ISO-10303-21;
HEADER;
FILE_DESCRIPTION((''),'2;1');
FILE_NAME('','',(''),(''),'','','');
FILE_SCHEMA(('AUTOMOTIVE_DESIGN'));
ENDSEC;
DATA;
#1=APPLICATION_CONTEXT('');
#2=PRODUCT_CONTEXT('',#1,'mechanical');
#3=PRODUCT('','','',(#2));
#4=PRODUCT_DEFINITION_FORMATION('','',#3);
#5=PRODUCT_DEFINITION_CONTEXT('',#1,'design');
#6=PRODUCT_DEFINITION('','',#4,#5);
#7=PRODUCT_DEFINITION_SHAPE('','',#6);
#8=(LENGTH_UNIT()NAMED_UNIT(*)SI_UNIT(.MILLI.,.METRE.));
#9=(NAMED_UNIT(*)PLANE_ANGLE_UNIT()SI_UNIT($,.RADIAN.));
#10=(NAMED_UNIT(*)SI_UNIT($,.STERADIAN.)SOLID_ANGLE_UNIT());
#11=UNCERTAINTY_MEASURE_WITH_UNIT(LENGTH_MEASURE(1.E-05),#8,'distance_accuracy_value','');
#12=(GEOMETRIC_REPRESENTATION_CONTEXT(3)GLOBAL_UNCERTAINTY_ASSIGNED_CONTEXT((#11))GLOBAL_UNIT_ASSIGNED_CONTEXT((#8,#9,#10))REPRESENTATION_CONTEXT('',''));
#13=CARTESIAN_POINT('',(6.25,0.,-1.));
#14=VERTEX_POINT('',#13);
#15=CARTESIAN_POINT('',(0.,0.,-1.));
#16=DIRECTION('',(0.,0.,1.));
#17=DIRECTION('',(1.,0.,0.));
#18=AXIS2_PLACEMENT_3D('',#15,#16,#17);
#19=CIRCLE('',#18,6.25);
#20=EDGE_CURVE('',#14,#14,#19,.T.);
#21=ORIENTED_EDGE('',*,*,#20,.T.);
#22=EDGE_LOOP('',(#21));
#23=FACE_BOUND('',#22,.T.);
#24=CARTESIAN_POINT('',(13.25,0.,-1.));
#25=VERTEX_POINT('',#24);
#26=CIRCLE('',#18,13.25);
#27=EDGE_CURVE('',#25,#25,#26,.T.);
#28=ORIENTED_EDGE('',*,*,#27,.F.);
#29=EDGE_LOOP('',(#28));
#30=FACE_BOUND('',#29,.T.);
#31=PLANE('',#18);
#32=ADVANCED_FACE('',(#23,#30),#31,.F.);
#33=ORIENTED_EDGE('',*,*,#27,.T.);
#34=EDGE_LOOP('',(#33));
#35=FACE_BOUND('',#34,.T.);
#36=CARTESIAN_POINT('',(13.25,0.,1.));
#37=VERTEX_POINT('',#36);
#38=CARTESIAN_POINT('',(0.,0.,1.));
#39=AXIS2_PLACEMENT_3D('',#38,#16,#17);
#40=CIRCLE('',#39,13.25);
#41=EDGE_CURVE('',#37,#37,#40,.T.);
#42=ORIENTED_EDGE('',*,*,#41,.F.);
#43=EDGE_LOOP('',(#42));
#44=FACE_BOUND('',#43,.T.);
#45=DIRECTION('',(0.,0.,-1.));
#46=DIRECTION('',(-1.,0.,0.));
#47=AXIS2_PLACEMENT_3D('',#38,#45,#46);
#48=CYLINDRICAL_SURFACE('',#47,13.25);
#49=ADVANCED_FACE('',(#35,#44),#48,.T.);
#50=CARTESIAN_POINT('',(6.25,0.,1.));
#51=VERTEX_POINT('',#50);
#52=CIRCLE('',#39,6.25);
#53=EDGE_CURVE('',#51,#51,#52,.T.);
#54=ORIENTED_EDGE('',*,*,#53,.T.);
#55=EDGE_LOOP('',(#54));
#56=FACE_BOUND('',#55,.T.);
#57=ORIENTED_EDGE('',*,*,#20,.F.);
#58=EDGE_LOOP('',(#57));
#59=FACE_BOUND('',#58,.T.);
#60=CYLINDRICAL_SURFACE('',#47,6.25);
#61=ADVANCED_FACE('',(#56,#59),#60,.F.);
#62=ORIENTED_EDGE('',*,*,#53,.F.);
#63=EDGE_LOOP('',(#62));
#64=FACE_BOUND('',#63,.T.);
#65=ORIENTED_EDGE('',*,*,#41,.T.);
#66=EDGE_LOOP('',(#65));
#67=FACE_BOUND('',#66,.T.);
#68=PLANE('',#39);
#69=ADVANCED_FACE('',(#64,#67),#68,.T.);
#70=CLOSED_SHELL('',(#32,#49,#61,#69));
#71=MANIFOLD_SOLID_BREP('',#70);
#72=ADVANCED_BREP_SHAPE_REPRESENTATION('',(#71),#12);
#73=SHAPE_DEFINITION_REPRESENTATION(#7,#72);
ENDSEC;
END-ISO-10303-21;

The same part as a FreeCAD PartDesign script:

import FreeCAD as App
import Part
import Sketcher
from FreeCAD import Vector
Q = App.Units.Quantity

doc = App.newDocument("Part")
body = doc.addObject("PartDesign::Body", "Body")

# Sketch on XY plane
sketch1 = body.newObject("Sketcher::SketchObject", "Sketch")
sketch1.AttachmentSupport = (doc.getObject("XY_Plane"), [""])
sketch1.MapMode = "FlatFace"
sketch1.addGeometry(Part.Circle(Vector(0, 0, 0), Vector(0, 0, 1), 13.25), False)
sketch1.addGeometry(Part.Circle(Vector(0, 0, 0), Vector(0, 0, 1), 6.25), False)
sketch1.addConstraint(Sketcher.Constraint("Coincident", 0, 3, -1, 1))
sketch1.addConstraint(Sketcher.Constraint("Coincident", 1, 3, -1, 1))
sketch1.addConstraint(Sketcher.Constraint("Diameter", 0, Q("26.5 mm")))
sketch1.addConstraint(Sketcher.Constraint("Diameter", 1, Q("12.5 mm")))
pad1 = body.newObject("PartDesign::Pad", "Pad")
pad1.Profile = sketch1
pad1.Length = 2
pad1.Midplane = True

doc.recompute()
